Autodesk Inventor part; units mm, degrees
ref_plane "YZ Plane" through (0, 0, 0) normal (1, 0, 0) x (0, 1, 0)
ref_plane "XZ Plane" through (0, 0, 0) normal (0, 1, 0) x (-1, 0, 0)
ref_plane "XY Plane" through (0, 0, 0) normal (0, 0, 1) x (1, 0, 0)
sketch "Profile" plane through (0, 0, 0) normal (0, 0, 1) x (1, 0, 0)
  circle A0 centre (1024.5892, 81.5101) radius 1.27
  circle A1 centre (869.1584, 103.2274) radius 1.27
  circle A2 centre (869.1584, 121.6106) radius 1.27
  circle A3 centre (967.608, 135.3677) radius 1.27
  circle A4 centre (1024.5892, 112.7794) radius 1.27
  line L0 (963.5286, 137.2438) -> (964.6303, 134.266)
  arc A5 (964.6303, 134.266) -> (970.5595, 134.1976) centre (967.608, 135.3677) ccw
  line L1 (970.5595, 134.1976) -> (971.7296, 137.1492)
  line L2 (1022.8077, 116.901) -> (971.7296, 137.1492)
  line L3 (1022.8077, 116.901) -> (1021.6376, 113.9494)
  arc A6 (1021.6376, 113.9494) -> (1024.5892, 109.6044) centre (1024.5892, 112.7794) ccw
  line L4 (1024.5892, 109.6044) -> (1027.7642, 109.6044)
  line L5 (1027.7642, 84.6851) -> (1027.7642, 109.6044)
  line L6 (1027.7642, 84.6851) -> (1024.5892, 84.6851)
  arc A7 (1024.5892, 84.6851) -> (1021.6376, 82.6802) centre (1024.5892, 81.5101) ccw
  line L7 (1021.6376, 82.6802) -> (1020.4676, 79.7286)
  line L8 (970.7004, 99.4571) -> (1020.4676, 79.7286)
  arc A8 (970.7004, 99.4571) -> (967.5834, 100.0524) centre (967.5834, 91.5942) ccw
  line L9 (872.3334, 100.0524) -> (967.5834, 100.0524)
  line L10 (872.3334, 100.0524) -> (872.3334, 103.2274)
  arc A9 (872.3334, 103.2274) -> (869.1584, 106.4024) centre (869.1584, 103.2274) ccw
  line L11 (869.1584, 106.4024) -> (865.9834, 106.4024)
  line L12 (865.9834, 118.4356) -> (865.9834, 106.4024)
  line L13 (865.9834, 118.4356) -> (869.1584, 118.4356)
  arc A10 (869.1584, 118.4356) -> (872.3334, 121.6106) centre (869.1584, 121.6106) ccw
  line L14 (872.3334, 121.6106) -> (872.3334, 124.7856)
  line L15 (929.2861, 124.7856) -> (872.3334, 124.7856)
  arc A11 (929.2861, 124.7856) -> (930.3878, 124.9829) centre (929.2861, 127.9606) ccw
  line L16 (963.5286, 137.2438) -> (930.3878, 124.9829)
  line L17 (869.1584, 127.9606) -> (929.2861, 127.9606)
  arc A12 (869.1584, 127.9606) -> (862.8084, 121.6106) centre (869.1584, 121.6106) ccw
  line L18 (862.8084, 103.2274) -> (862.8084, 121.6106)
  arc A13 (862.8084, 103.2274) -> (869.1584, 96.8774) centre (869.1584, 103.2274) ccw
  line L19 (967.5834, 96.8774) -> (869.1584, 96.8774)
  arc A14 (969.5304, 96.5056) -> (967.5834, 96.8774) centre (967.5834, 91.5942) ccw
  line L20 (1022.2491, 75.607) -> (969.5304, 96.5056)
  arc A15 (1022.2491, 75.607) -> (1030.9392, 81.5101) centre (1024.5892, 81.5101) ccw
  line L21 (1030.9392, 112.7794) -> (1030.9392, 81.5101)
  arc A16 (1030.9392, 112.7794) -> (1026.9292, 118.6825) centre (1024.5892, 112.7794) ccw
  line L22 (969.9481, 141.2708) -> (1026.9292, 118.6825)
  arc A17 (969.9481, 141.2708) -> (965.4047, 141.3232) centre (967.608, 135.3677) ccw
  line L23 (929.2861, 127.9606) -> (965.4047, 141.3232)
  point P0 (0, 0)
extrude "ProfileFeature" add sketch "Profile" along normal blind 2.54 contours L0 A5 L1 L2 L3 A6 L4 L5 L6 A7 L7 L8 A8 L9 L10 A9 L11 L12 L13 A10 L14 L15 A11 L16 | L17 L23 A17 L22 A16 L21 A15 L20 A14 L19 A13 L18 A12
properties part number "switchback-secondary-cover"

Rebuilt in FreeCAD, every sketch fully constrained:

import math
import FreeCAD as App
import Part
import Sketcher
Q = App.Units.Quantity

doc = App.newDocument("Part")
body = doc.addObject("PartDesign::Body", "Body")

sketch1 = body.newObject("Sketcher::SketchObject", "Sketch")
sketch1.AttachmentSupport = (doc.getObject("XY_Plane"), [""])
sketch1.MapMode = "FlatFace"
sketch1.addGeometry([
    Part.LineSegment(App.Vector(929.3, 128, 0), App.Vector(869.2, 128, 0)),
    Part.ArcOfCircle(Part.Circle(App.Vector(869.2, 121.6, 0), App.Vector(0, 0, 1), 6.3), math.radians(90), math.radians(180)),
    Part.LineSegment(App.Vector(862.8, 121.6, 0), App.Vector(862.8, 103.2, 0)),
    Part.ArcOfCircle(Part.Circle(App.Vector(869.2, 103.2, 0), App.Vector(0, 0, 1), 6.4), math.radians(180), math.radians(270)),
    Part.LineSegment(App.Vector(869.2, 96.9, 0), App.Vector(967.6, 96.9, 0)),
    Part.ArcOfCircle(Part.Circle(App.Vector(967.6, 91.6, 0), App.Vector(0, 0, 1), 5.3), math.radians(68), math.radians(90)),
    Part.LineSegment(App.Vector(969.5, 96.5, 0), App.Vector(1022.2, 75.6, 0)),
    Part.ArcOfCircle(Part.Circle(App.Vector(1024.6, 81.5, 0), App.Vector(0, 0, 1), 6.4), math.radians(-112), math.radians(0)),
    Part.LineSegment(App.Vector(1030.9, 81.5, 0), App.Vector(1030.9, 112.8, 0)),
    Part.ArcOfCircle(Part.Circle(App.Vector(1024.6, 112.8, 0), App.Vector(0, 0, 1), 6.4), math.radians(0), math.radians(68)),
    Part.LineSegment(App.Vector(1026.9, 118.7, 0), App.Vector(969.9, 141.3, 0)),
    Part.ArcOfCircle(Part.Circle(App.Vector(967.6, 135.4, 0), App.Vector(0, 0, 1), 6.4), math.radians(68), math.radians(110)),
    Part.LineSegment(App.Vector(965.4, 141.3, 0), App.Vector(929.3, 128, 0)),
    Part.Circle(App.Vector(869.2, 103.2, 0), App.Vector(0, 0, 1), 1.3),
    Part.Circle(App.Vector(1024.6, 81.5, 0), App.Vector(0, 0, 1), 1.3),
    Part.Circle(App.Vector(869.2, 121.6, 0), App.Vector(0, 0, 1), 1.3),
    Part.Circle(App.Vector(1024.6, 112.8, 0), App.Vector(0, 0, 1), 1.3),
    Part.Circle(App.Vector(967.6, 135.4, 0), App.Vector(0, 0, 1), 1.3),
], False)
sketch1.addConstraint([
    Sketcher.Constraint("Tangent", 0, 2, 1, 1),
    Sketcher.Constraint("Tangent", 1, 2, 2, 1),
    Sketcher.Constraint("Tangent", 2, 2, 3, 1),
    Sketcher.Constraint("Tangent", 3, 2, 4, 1),
    Sketcher.Constraint("Tangent", 4, 2, 5, 2),
    Sketcher.Constraint("Tangent", 5, 1, 6, 1),
    Sketcher.Constraint("Tangent", 6, 2, 7, 1),
    Sketcher.Constraint("Tangent", 7, 2, 8, 1),
    Sketcher.Constraint("Tangent", 8, 2, 9, 1),
    Sketcher.Constraint("Tangent", 9, 2, 10, 1),
    Sketcher.Constraint("Tangent", 10, 2, 11, 1),
    Sketcher.Constraint("Tangent", 11, 2, 12, 1),
    Sketcher.Constraint("Coincident", 12, 2, 0, 1),
    Sketcher.Constraint("Horizontal", 0),
    Sketcher.Constraint("Vertical", 2),
    Sketcher.Constraint("Horizontal", 4),
    Sketcher.Constraint("Vertical", 8),
    Sketcher.Constraint("Coincident", 13, 3, 3, 3),
    Sketcher.Constraint("Coincident", 14, 3, 7, 3),
    Sketcher.Constraint("Coincident", 15, 3, 1, 3),
    Sketcher.Constraint("Coincident", 16, 3, 9, 3),
    Sketcher.Constraint("Coincident", 17, 3, 11, 3),
    Sketcher.Constraint("Equal", 1, 3),
    Sketcher.Constraint("Equal", 3, 7),
    Sketcher.Constraint("Equal", 7, 9),
    Sketcher.Constraint("Equal", 9, 11),
    Sketcher.Constraint("Equal", 13, 14),
    Sketcher.Constraint("Equal", 14, 15),
    Sketcher.Constraint("Equal", 15, 16),
    Sketcher.Constraint("Equal", 16, 17),
    Sketcher.Constraint("Parallel", 6, 10),
    Sketcher.Constraint("Diameter", 13, Q("0.1 in")),
    Sketcher.Constraint("Radius", 1, Q("0.25 in")),
    Sketcher.Constraint("DistanceX", 4, 1, 4, 2, Q("3.875 in")),
    Sketcher.Constraint("Radius", 5, Q("5.282 mm")),
    Sketcher.Constraint("DistanceY", 5, 1, 11, 3, Q("1.53 in")),
    Sketcher.Constraint("DistanceY", 7, 3, 3, 3, Q("0.855 in")),
    Sketcher.Constraint("DistanceX", 12, 2, 11, 2, Q("1.422 in")),
    Sketcher.Constraint("Distance", 10, Q("2.4132 in")),
    Sketcher.Constraint("Distance", 12, Q("1.5162 in")),
    Sketcher.Constraint("DistanceX", 0, 2, 0, 1, Q("60.1277 mm")),
    Sketcher.Constraint("DistanceX", -1, 1, 11, 3, Q("38.0948 in")),
    Sketcher.Constraint("DistanceY", -1, 1, 11, 2, Q("5.5639 in")),
])
pad1 = body.newObject("PartDesign::Pad", "Pad")
pad1.Profile = sketch1
pad1.Length = Q("0.1 in")

doc.recompute()
